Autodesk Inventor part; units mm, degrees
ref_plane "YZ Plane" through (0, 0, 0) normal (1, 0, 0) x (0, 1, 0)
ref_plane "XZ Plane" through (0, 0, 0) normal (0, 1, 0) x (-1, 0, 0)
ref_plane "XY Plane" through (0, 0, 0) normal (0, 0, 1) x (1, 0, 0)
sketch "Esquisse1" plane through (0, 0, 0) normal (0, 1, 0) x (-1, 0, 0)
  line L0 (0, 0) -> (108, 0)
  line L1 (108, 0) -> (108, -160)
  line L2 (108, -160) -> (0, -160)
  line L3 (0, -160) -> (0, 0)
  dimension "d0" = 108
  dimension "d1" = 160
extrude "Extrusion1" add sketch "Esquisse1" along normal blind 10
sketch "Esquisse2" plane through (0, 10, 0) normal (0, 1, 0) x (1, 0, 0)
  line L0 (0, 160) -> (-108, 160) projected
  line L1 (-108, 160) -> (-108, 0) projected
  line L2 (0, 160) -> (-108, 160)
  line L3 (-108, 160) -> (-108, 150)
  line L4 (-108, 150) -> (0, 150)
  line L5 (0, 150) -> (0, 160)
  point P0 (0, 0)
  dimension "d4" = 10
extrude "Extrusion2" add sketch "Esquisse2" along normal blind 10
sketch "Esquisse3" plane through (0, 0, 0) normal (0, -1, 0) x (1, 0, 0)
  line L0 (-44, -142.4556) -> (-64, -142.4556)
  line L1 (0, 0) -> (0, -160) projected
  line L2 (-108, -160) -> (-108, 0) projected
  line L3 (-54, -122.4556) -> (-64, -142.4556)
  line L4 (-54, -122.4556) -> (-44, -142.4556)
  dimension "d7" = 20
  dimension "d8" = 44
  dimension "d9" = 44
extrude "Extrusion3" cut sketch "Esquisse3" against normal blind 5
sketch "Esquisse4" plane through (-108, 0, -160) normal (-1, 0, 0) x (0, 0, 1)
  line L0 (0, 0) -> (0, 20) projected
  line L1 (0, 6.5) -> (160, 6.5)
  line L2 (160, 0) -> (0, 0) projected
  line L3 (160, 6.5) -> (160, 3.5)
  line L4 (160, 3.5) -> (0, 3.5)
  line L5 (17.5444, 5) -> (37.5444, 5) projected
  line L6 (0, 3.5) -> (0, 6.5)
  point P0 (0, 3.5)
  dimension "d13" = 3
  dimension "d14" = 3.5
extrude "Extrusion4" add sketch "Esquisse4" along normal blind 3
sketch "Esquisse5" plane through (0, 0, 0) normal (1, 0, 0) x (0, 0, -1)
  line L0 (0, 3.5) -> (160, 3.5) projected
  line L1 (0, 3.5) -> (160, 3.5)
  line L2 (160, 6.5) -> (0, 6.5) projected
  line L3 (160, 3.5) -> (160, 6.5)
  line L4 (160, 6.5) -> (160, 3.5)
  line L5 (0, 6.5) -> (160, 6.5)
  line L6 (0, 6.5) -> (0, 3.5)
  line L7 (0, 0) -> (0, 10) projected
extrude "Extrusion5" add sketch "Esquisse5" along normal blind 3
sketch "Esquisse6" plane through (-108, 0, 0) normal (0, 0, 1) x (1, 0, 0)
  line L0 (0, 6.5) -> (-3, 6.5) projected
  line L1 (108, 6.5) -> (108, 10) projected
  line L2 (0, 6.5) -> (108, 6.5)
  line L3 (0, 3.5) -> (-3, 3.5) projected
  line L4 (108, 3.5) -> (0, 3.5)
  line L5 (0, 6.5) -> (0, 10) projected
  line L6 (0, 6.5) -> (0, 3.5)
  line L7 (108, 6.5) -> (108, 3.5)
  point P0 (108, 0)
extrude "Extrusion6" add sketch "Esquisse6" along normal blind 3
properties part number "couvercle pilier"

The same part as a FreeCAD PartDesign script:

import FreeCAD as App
import Part
import Sketcher

V = App.Vector
Q = App.Units.Quantity


def add_polygon(sketch, points):
    """Adds a closed chain of lines whose ends are joined by coincident constraints."""
    first, n = sketch.GeometryCount, len(points)
    for a, b in zip(points, points[1:] + points[:1]):
        sketch.addGeometry(Part.LineSegment(App.Vector(*a, 0), App.Vector(*b, 0)), False)
    for i in range(n):
        sketch.addConstraint(Sketcher.Constraint("Coincident", first + i, 2, first + (i + 1) % n, 1))

doc = App.newDocument("Part")
body = doc.addObject("PartDesign::Body", "Body")

sketch1 = body.newObject("Sketcher::SketchObject", "Sketch")
sketch1.AttachmentSupport = (doc.getObject("XZ_Plane"), [""])
sketch1.MapMode = "FlatFace"
add_polygon(sketch1, [(-108, 0), (0, 0), (0, -160), (-108, -160)])
sketch1.addConstraint([
    Sketcher.Constraint("Horizontal", 0),
    Sketcher.Constraint("Vertical", 1),
    Sketcher.Constraint("Horizontal", 2),
    Sketcher.Constraint("Vertical", 3),
    Sketcher.Constraint("Coincident", 0, 2, -1, 1),
    Sketcher.Constraint("DistanceX", 0, 1, 0, 2, Q("108 mm")),
    Sketcher.Constraint("DistanceY", 1, 2, 1, 1, Q("160 mm")),
])
pad1 = body.newObject("PartDesign::Pad", "Pad")
pad1.Profile = sketch1
pad1.Length = 10
pad1.Reversed = True

sketch2 = body.newObject("Sketcher::SketchObject", "Sketch001")
sketch2.AttachmentSupport = (doc.getObject("XZ_Plane"), [""])
sketch2.MapMode = "FlatFace"
sketch2.AttachmentOffset = App.Placement(V(0, 0, -10), App.Rotation())
add_polygon(sketch2, [(0, -150), (0, -160), (-108, -160), (-108, -150)])
sketch2.addConstraint([
    Sketcher.Constraint("Vertical", 0),
    Sketcher.Constraint("Horizontal", 1),
    Sketcher.Constraint("Vertical", 2),
    Sketcher.Constraint("Horizontal", 3),
    Sketcher.Constraint("PointOnObject", 0, 2, -2),
    Sketcher.Constraint("DistanceY", 0, 2, 0, 1, Q("10 mm")),
    Sketcher.Constraint("DistanceX", 1, 2, 1, 1, Q("108 mm")),
    Sketcher.Constraint("DistanceY", 0, 2, -1, 1, Q("160 mm")),
])
pad2 = body.newObject("PartDesign::Pad", "Pad001")
pad2.Profile = sketch2
pad2.Length = 10
pad2.Reversed = True

sketch3 = body.newObject("Sketcher::SketchObject", "Sketch002")
sketch3.AttachmentSupport = (doc.getObject("XZ_Plane"), [""])
sketch3.MapMode = "FlatFace"
add_polygon(sketch3, [(-64, -142), (-44, -142), (-54, -122)])
sketch3.addConstraint([
    Sketcher.Constraint("Horizontal", 0),
    Sketcher.Constraint("Equal", 1, 2),
    Sketcher.Constraint("DistanceX", 0, 1, 0, 2, Q("20 mm")),
    Sketcher.Constraint("DistanceX", 0, 2, -1, 1, Q("44 mm")),
    Sketcher.Constraint("DistanceY", 0, 2, 1, 2, Q("20 mm")),
    Sketcher.Constraint("DistanceY", 0, 2, -1, 1, Q("142.4556 mm")),
])
pocket1 = body.newObject("PartDesign::Pocket", "Pocket")
pocket1.Profile = sketch3
pocket1.Length = 5

sketch4 = body.newObject("Sketcher::SketchObject", "Sketch003")
sketch4.AttachmentSupport = (doc.getObject("YZ_Plane"), [""])
sketch4.MapMode = "FlatFace"
sketch4.AttachmentOffset = App.Placement(V(0, 0, -108), App.Rotation())
add_polygon(sketch4, [(6.5, -160), (3.5, -160), (3.5, 0), (6.5, 0)])
sketch4.addConstraint([
    Sketcher.Constraint("Horizontal", 0),
    Sketcher.Constraint("Vertical", 1),
    Sketcher.Constraint("Horizontal", 2),
    Sketcher.Constraint("Vertical", 3),
    Sketcher.Constraint("PointOnObject", 1, 2, -1),
    Sketcher.Constraint("DistanceX", 0, 2, 0, 1, Q("3 mm")),
    Sketcher.Constraint("DistanceX", -1, 1, 0, 2, Q("3.5 mm")),
    Sketcher.Constraint("DistanceY", 1, 1, 1, 2, Q("160 mm")),
])
pad3 = body.newObject("PartDesign::Pad", "Pad002")
pad3.Profile = sketch4
pad3.Length = 3
pad3.Reversed = True

sketch5 = body.newObject("Sketcher::SketchObject", "Sketch004")
sketch5.AttachmentSupport = (doc.getObject("YZ_Plane"), [""])
sketch5.MapMode = "FlatFace"
add_polygon(sketch5, [(6.5, 0), (3.5, 0), (3.5, -160), (6.5, -160)])
sketch5.addConstraint([
    Sketcher.Constraint("Horizontal", 0),
    Sketcher.Constraint("Vertical", 1),
    Sketcher.Constraint("Horizontal", 2),
    Sketcher.Constraint("Vertical", 3),
    Sketcher.Constraint("PointOnObject", 0, 2, -1),
    Sketcher.Constraint("DistanceX", 0, 2, 0, 1, Q("3 mm")),
    Sketcher.Constraint("DistanceY", 1, 2, 1, 1, Q("160 mm")),
    Sketcher.Constraint("DistanceX", -1, 1, 0, 2, Q("3.5 mm")),
])
pad4 = body.newObject("PartDesign::Pad", "Pad003")
pad4.Profile = sketch5
pad4.Length = 3

sketch6 = body.newObject("Sketcher::SketchObject", "Sketch005")
sketch6.AttachmentSupport = (doc.getObject("XY_Plane"), [""])
sketch6.MapMode = "FlatFace"
add_polygon(sketch6, [(0, 6.5), (-108, 6.5), (-108, 3.5), (0, 3.5)])
sketch6.addConstraint([
    Sketcher.Constraint("Horizontal", 0),
    Sketcher.Constraint("Vertical", 1),
    Sketcher.Constraint("Horizontal", 2),
    Sketcher.Constraint("Vertical", 3),
    Sketcher.Constraint("PointOnObject", 2, 2, -2),
    Sketcher.Constraint("DistanceX", 0, 2, 0, 1, Q("108 mm")),
    Sketcher.Constraint("DistanceY", 1, 2, 1, 1, Q("3 mm")),
    Sketcher.Constraint("DistanceY", -1, 1, 0, 2, Q("6.5 mm")),
])
pad5 = body.newObject("PartDesign::Pad", "Pad004")
pad5.Profile = sketch6
pad5.Length = 3

doc.recompute()
